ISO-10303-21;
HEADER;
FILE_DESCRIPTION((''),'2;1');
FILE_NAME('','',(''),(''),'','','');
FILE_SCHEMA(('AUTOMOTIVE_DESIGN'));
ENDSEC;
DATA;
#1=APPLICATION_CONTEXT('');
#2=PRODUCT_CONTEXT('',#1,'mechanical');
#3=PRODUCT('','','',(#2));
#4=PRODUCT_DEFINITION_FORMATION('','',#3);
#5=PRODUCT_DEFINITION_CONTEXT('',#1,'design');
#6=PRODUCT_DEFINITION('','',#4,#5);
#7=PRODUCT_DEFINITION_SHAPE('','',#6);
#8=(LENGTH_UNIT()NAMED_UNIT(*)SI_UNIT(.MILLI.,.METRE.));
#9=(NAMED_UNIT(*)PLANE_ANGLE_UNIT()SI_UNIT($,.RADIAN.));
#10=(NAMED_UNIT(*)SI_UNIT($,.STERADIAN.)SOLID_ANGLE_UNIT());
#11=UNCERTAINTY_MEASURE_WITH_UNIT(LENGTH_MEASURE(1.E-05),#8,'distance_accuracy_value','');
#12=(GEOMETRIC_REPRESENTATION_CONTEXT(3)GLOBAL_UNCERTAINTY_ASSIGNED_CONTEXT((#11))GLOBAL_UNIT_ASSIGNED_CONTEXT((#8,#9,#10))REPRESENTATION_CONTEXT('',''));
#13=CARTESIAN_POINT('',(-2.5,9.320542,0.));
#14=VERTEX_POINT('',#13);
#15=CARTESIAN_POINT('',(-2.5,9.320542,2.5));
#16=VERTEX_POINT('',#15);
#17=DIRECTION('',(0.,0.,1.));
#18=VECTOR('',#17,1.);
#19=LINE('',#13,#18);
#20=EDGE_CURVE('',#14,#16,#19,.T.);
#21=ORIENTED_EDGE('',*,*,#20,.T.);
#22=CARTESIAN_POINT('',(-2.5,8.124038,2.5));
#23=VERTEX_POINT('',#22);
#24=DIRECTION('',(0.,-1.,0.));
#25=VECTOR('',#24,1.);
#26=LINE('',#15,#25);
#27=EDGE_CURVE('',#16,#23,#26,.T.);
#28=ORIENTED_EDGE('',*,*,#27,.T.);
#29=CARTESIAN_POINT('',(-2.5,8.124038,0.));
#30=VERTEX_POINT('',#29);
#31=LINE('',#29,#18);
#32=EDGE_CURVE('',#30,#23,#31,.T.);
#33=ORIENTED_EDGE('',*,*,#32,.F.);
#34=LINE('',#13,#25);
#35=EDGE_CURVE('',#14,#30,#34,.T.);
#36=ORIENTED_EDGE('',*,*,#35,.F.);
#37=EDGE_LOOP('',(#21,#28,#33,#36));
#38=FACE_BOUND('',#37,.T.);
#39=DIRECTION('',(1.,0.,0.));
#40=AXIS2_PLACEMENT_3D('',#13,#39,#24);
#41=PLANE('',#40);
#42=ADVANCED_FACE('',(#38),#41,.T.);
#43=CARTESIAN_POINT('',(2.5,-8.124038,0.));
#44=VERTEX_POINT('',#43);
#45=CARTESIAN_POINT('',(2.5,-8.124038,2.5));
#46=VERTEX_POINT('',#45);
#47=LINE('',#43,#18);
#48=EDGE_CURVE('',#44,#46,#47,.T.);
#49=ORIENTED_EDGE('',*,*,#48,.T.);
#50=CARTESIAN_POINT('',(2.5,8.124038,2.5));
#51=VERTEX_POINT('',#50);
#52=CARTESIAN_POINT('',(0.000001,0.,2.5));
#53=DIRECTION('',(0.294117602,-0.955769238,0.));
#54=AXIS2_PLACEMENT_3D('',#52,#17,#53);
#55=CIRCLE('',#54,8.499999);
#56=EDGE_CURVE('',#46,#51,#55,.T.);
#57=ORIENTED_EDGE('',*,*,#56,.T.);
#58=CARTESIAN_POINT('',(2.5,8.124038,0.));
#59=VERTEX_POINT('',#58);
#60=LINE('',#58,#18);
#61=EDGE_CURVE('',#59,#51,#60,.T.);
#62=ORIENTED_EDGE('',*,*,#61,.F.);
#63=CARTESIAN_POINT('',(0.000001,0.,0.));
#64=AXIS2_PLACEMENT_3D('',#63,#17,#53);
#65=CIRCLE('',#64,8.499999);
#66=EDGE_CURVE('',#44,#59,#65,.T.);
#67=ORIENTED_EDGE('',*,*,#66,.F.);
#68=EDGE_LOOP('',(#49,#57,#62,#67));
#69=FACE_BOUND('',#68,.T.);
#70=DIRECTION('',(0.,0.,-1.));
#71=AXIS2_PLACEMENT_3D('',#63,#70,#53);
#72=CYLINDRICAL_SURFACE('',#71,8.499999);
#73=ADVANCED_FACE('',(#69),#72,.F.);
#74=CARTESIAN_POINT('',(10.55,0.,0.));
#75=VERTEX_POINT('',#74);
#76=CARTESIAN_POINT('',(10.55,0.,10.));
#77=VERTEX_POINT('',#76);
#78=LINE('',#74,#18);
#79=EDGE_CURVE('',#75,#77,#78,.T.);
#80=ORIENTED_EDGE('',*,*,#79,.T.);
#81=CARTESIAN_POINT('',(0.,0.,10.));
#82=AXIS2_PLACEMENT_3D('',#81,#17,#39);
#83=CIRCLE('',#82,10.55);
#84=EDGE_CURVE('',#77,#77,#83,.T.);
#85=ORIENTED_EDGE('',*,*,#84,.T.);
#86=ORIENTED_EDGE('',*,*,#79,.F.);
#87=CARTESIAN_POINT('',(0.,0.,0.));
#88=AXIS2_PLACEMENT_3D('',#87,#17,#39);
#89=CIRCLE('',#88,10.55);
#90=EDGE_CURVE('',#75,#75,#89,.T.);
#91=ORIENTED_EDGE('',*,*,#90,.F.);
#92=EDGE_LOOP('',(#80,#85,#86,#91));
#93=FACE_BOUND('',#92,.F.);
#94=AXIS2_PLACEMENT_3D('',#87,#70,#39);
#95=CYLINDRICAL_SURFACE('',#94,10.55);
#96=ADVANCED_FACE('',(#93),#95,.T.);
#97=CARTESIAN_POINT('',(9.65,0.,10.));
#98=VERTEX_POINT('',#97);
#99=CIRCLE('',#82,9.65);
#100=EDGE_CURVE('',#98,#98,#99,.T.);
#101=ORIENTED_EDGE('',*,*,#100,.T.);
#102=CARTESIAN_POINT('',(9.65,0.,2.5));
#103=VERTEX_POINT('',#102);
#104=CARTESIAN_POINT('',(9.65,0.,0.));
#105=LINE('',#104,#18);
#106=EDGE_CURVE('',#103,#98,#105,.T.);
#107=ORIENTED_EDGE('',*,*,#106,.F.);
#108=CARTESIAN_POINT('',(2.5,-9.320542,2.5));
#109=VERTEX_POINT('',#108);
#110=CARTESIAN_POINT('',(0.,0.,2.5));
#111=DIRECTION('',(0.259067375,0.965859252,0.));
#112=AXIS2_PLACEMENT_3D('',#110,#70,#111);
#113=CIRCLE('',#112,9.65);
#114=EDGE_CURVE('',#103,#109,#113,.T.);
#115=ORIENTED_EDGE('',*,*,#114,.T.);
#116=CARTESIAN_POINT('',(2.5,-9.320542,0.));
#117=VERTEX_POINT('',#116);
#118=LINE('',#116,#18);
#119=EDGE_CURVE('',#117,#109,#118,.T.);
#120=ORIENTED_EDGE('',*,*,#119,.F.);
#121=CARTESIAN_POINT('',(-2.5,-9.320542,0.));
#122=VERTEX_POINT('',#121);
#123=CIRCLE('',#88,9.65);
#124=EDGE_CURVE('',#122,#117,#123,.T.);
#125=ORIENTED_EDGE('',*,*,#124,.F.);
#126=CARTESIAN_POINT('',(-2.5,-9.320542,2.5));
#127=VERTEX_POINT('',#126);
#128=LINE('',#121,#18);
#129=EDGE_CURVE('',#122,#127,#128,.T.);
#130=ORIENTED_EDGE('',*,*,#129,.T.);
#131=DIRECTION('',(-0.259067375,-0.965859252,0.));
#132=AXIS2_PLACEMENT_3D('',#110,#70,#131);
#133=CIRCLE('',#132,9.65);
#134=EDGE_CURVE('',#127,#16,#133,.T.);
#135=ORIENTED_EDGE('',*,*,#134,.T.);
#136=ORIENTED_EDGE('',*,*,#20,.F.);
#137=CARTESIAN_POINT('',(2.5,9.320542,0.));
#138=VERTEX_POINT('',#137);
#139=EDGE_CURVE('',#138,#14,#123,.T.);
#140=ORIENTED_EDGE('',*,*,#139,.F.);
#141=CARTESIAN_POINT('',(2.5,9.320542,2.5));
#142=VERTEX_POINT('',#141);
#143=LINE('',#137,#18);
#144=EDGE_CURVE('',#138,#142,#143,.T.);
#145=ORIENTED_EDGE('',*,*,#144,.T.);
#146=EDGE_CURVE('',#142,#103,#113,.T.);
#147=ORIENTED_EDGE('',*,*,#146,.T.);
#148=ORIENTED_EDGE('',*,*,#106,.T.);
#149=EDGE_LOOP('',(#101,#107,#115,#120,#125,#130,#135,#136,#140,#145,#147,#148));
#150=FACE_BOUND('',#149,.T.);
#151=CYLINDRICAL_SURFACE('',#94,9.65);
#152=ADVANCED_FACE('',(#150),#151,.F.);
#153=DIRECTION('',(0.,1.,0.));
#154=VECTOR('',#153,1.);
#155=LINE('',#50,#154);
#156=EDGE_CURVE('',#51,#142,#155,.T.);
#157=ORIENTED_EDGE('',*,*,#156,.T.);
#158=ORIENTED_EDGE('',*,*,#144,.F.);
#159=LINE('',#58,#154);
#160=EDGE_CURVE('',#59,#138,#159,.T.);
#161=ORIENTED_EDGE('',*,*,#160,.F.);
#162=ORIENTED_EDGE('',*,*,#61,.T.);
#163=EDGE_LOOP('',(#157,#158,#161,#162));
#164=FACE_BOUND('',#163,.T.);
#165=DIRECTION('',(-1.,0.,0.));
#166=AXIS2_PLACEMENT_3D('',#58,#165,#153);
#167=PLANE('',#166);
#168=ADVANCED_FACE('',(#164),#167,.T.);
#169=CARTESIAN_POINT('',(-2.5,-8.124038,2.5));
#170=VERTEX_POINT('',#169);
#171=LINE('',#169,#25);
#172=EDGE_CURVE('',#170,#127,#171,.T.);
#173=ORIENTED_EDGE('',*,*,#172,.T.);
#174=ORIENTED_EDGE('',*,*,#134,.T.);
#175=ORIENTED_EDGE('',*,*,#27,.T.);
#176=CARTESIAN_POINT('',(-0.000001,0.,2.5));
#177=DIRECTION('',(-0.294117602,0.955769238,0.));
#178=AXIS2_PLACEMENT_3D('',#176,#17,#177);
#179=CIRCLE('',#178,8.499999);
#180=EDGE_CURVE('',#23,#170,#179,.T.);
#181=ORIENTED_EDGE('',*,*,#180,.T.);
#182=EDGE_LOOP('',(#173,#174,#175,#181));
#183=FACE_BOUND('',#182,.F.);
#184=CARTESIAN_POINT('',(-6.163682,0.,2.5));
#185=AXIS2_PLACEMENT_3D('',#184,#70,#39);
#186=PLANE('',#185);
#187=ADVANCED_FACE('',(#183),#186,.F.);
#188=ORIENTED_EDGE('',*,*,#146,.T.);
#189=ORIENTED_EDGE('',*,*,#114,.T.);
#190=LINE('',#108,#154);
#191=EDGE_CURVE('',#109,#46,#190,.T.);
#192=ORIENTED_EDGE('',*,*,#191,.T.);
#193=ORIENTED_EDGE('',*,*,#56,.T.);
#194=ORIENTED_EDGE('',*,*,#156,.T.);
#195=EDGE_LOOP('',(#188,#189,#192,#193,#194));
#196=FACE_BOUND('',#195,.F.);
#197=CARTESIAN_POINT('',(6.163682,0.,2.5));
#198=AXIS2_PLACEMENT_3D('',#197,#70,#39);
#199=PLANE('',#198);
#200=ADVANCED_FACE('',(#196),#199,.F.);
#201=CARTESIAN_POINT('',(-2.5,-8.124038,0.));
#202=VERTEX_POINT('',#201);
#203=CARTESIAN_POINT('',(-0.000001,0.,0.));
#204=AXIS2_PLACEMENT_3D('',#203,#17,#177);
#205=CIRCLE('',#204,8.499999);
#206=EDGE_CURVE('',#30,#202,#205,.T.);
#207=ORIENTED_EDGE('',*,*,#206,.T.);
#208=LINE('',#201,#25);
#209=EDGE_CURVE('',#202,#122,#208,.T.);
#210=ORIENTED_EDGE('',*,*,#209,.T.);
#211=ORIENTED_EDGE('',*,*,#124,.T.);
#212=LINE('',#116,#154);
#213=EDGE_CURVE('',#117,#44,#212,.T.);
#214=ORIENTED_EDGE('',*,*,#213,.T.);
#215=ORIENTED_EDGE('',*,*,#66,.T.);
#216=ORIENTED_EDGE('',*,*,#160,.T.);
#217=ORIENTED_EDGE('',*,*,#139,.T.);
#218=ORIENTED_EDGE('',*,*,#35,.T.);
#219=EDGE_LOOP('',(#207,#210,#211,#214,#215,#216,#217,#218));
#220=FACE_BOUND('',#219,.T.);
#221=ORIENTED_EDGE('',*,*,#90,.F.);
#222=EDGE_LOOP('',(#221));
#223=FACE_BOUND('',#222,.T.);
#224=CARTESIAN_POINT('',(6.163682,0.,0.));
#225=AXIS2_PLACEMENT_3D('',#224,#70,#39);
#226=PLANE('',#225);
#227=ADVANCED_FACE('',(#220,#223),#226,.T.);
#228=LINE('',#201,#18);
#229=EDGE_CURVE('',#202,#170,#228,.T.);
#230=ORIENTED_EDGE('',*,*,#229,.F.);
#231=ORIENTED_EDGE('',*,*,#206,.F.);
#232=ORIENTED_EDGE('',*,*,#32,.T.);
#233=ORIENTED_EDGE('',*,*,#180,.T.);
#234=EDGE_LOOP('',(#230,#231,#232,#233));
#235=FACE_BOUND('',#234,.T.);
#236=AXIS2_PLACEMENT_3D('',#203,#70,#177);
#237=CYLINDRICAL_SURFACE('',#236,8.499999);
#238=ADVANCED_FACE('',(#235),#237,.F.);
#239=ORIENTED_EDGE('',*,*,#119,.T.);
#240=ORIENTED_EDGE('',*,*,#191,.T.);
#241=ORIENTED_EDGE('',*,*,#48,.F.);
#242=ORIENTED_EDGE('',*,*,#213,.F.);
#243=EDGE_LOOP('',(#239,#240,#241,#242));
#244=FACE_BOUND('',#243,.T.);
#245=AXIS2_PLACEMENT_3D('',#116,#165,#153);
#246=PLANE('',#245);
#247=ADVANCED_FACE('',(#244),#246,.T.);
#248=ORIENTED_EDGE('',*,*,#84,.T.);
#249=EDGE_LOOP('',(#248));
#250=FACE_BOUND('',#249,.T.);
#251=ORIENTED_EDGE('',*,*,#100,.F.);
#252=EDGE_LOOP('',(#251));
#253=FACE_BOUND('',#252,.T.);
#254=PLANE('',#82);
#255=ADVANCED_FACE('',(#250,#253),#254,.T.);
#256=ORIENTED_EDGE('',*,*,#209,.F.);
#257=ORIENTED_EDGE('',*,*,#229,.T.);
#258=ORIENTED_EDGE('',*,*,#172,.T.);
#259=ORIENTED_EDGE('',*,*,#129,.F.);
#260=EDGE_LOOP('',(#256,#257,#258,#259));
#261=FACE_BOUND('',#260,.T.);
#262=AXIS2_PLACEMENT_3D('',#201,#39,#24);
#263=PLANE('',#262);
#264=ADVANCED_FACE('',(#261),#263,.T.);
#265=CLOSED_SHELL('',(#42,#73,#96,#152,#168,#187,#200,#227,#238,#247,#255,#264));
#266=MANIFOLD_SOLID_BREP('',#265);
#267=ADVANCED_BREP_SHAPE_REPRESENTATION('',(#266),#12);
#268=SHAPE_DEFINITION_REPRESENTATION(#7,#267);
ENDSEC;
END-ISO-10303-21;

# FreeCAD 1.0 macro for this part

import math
import FreeCAD as App
import Part
import Sketcher
from FreeCAD import Vector

doc = App.newDocument("Part")
body = doc.addObject("PartDesign::Body", "Body")

# Sketch on XY plane
sketch1 = body.newObject("Sketcher::SketchObject", "Sketch")
sketch1.AttachmentSupport = (doc.getObject("XY_Plane"), [""])
sketch1.MapMode = "FlatFace"
sketch1.addGeometry(Part.Circle(Vector(0, 0, 0), Vector(0, 0, 1), 11), False)
sketch1.addGeometry(Part.Circle(Vector(0, 0, 0), Vector(0, 0, 1), 10), False)
sketch1.addConstraint(Sketcher.Constraint("Coincident", 0, 3, -1, 1))
sketch1.addConstraint(Sketcher.Constraint("Coincident", 1, 3, -1, 1))
sketch1.addConstraint(Sketcher.Constraint("Diameter", 0, 21.1))
sketch1.addConstraint(Sketcher.Constraint("Diameter", 1, 19.3))
pad1 = body.newObject("PartDesign::Pad", "Pad")
pad1.Profile = sketch1
pad1.Length = 10

# Sketch on XY plane
sketch2 = body.newObject("Sketcher::SketchObject", "Sketch001")
sketch2.AttachmentSupport = (doc.getObject("XY_Plane"), [""])
sketch2.MapMode = "FlatFace"
sketch2.addGeometry(Part.ArcOfCircle(Part.Circle(Vector(0, 0, 0), Vector(0, 0, 1), 8.5), math.radians(107), math.radians(253)), False)
sketch2.addGeometry(Part.LineSegment(Vector(-2.5, -8.1, 0), Vector(-2.5, -9.3, 0)), False)
sketch2.addGeometry(Part.ArcOfCircle(Part.Circle(Vector(0, 0, 0), Vector(0, 0, 1), 9.7), math.radians(105), math.radians(255)), False)
sketch2.addGeometry(Part.LineSegment(Vector(-2.5, 9.3, 0), Vector(-2.5, 8.1, 0)), False)
sketch2.addGeometry(Part.ArcOfCircle(Part.Circle(Vector(0, 0, 0), Vector(0, 0, 1), 9.7), math.radians(-75), math.radians(75)), False)
sketch2.addGeometry(Part.LineSegment(Vector(2.5, -9.3, 0), Vector(2.5, -8.1, 0)), False)
sketch2.addGeometry(Part.ArcOfCircle(Part.Circle(Vector(0, 0, 0), Vector(0, 0, 1), 8.5), math.radians(-73), math.radians(73)), False)
sketch2.addGeometry(Part.LineSegment(Vector(2.5, 8.1, 0), Vector(2.5, 9.3, 0)), False)
sketch2.addConstraint(Sketcher.Constraint("Coincident", 0, 2, 1, 1))
sketch2.addConstraint(Sketcher.Constraint("Coincident", 1, 2, 2, 2))
sketch2.addConstraint(Sketcher.Constraint("Coincident", 2, 1, 3, 1))
sketch2.addConstraint(Sketcher.Constraint("Coincident", 3, 2, 0, 1))
sketch2.addConstraint(Sketcher.Constraint("Coincident", 4, 1, 5, 1))
sketch2.addConstraint(Sketcher.Constraint("Coincident", 5, 2, 6, 1))
sketch2.addConstraint(Sketcher.Constraint("Coincident", 6, 2, 7, 1))
sketch2.addConstraint(Sketcher.Constraint("Coincident", 7, 2, 4, 2))
sketch2.addConstraint(Sketcher.Constraint("Vertical", 1))
sketch2.addConstraint(Sketcher.Constraint("Vertical", 3))
sketch2.addConstraint(Sketcher.Constraint("Vertical", 5))
sketch2.addConstraint(Sketcher.Constraint("Vertical", 7))
sketch2.addConstraint(Sketcher.Constraint("Coincident", 0, 3, -1, 1))
sketch2.addConstraint(Sketcher.Constraint("Coincident", 2, 3, -1, 1))
sketch2.addConstraint(Sketcher.Constraint("Coincident", 4, 3, -1, 1))
sketch2.addConstraint(Sketcher.Constraint("Coincident", 6, 3, -1, 1))
sketch2.addConstraint(Sketcher.Constraint("Equal", 2, 4))
sketch2.addConstraint(Sketcher.Constraint("Equal", 0, 6))
sketch2.addConstraint(Sketcher.Constraint("Horizontal", 1, 2, 4, 1))
sketch2.addConstraint(Sketcher.Constraint("Horizontal", 3, 2, 6, 2))
sketch2.addConstraint(Sketcher.Constraint("Vertical", 1, 2, 2, 1))
sketch2.addConstraint(Sketcher.Constraint("Radius", 0, 8.499999))
sketch2.addConstraint(Sketcher.Constraint("Radius", 2, 9.65))
sketch2.addConstraint(Sketcher.Constraint("DistanceX", 1, 2, 4, 1, 5.0))
pad2 = body.newObject("PartDesign::Pad", "Pad001")
pad2.Profile = sketch2
pad2.Length = 2.5

doc.recompute()
